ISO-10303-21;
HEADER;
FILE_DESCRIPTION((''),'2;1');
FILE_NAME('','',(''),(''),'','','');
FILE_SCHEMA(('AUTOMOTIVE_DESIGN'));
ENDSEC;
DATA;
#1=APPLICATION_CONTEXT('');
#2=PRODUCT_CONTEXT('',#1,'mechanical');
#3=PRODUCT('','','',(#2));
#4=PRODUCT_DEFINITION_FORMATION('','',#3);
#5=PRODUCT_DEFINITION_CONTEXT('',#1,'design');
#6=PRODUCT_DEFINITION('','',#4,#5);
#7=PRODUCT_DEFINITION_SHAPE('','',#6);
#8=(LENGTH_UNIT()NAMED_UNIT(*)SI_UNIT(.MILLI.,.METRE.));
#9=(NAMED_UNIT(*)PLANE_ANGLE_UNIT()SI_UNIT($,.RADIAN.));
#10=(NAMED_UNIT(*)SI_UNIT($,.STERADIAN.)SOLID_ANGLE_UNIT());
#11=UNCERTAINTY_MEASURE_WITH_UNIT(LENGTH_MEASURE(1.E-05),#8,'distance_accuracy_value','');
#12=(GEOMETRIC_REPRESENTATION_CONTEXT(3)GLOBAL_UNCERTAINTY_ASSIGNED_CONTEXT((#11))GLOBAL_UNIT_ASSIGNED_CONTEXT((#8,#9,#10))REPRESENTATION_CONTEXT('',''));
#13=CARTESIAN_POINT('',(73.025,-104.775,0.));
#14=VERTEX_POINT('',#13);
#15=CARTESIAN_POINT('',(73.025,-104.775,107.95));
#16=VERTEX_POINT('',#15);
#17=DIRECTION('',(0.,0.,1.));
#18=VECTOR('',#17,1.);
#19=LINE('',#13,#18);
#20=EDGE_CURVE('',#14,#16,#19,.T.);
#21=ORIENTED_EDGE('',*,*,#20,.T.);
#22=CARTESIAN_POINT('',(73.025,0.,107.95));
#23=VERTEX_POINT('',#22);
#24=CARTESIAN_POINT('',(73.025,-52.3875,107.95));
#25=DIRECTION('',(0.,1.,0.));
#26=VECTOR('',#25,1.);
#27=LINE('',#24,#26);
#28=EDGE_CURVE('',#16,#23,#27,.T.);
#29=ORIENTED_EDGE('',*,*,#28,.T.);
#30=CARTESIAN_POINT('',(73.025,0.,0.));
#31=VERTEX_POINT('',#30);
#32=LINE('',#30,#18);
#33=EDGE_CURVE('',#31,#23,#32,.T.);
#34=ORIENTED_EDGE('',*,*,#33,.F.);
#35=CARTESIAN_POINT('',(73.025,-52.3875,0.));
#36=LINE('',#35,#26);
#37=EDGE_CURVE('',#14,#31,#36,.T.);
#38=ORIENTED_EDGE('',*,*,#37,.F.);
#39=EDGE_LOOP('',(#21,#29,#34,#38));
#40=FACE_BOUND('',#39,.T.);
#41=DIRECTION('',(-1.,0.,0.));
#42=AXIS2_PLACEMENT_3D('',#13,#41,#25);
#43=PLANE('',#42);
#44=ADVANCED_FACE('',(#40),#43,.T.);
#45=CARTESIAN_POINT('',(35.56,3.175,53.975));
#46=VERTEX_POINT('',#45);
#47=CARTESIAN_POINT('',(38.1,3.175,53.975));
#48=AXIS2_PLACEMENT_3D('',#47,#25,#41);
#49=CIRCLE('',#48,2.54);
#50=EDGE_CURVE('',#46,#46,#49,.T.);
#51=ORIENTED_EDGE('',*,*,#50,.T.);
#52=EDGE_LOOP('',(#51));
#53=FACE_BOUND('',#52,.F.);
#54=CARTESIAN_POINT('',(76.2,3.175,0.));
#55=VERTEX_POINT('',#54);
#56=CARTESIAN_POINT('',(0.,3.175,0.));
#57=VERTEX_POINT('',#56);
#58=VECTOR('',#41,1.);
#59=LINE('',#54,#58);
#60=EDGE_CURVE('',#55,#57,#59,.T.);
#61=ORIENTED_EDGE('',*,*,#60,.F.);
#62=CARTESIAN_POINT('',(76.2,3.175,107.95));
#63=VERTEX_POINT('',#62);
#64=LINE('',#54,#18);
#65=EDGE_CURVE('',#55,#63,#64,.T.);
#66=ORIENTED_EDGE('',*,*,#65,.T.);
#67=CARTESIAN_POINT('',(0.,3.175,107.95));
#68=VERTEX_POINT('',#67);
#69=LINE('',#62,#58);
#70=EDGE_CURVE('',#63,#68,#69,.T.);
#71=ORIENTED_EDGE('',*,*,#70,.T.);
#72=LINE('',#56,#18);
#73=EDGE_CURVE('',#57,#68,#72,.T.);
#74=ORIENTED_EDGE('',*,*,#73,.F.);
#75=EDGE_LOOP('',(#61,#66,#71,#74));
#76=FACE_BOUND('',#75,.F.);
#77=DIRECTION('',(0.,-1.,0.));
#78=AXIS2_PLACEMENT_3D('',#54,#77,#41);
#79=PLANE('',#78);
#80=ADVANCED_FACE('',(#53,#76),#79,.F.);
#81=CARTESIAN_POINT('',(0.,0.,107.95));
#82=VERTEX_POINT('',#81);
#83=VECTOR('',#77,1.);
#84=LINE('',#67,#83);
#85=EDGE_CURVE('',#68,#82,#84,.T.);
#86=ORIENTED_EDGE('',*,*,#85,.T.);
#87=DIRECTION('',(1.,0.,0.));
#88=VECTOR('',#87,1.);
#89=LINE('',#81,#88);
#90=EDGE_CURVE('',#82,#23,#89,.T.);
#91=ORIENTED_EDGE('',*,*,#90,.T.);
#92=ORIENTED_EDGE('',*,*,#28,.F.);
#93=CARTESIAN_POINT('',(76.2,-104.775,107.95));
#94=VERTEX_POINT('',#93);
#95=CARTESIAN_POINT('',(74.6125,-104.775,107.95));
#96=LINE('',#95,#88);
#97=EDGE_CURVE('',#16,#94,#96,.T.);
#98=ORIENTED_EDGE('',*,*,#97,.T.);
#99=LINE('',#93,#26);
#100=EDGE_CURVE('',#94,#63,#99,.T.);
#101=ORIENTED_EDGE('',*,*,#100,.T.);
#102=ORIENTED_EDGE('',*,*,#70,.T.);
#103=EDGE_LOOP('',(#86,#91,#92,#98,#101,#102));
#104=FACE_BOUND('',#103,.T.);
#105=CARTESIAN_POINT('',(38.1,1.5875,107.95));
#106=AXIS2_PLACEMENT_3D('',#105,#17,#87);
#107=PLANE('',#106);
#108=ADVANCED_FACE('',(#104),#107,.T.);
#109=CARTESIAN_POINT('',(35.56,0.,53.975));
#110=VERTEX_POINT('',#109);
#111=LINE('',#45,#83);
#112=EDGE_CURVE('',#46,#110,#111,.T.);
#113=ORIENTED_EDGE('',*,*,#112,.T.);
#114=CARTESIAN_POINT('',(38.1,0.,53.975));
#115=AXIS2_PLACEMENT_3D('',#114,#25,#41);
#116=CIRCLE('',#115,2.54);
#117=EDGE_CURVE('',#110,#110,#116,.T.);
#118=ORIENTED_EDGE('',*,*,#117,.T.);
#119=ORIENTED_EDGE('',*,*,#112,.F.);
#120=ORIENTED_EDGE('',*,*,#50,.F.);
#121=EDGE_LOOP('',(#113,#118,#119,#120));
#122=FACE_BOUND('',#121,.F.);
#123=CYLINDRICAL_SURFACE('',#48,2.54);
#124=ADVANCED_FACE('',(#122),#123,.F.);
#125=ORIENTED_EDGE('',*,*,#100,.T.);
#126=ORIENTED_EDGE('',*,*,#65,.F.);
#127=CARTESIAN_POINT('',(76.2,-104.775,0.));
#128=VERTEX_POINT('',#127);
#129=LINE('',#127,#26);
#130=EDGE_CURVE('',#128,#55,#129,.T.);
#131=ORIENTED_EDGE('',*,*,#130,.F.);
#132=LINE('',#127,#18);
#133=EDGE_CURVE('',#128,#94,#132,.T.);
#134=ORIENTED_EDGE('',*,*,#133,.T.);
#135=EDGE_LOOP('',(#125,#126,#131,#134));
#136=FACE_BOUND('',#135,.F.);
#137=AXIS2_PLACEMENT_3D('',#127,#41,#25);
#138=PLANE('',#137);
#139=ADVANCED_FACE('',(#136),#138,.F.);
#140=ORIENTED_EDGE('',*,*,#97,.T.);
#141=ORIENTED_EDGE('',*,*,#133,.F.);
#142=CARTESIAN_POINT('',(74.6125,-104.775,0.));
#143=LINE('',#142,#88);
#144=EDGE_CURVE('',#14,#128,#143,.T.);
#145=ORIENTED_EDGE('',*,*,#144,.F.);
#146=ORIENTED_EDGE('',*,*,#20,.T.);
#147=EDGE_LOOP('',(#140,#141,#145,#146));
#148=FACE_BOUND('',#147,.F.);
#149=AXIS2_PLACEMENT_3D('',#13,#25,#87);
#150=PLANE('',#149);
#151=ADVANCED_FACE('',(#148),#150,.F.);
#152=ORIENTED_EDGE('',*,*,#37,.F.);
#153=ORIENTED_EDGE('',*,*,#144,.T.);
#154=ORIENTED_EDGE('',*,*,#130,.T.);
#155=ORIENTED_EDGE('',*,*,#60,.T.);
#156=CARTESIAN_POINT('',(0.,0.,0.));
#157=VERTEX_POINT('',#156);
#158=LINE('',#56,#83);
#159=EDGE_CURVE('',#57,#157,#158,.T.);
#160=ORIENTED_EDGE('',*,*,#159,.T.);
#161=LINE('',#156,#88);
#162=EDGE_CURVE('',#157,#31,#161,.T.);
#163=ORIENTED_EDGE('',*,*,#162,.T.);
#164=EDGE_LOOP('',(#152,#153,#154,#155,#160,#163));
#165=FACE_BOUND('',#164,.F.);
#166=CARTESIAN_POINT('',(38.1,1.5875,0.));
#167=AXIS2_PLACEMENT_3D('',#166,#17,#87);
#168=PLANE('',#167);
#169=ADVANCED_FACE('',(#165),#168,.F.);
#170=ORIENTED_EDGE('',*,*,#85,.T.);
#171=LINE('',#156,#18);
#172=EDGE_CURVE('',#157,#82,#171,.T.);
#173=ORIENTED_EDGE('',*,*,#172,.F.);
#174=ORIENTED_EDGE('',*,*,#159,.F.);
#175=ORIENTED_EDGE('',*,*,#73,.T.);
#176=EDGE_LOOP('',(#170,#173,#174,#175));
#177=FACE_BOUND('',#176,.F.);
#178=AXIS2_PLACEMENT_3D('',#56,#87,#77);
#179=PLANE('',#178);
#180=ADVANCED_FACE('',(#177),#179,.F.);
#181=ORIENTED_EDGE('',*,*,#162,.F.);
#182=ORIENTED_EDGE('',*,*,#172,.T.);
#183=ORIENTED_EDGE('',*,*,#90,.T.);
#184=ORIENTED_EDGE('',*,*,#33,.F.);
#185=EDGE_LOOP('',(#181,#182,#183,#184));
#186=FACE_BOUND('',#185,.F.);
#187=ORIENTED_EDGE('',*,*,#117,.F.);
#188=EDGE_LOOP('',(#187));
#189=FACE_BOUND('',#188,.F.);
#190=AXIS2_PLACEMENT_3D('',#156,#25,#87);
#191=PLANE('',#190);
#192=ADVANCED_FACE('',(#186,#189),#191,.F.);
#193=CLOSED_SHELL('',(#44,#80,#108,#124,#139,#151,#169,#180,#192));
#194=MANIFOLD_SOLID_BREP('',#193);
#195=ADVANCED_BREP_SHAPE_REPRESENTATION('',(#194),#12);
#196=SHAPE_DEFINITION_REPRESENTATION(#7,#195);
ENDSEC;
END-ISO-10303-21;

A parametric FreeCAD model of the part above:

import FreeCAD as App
import Part
import Sketcher
Q = App.Units.Quantity


def add_polygon(sketch, points):
    """Adds a closed chain of lines whose ends are joined by coincident constraints."""
    first, n = sketch.GeometryCount, len(points)
    for a, b in zip(points, points[1:] + points[:1]):
        sketch.addGeometry(Part.LineSegment(App.Vector(*a, 0), App.Vector(*b, 0)), False)
    for i in range(n):
        sketch.addConstraint(Sketcher.Constraint("Coincident", first + i, 2, first + (i + 1) % n, 1))

doc = App.newDocument("Part")
body = doc.addObject("PartDesign::Body", "Body")

sketch1 = body.newObject("Sketcher::SketchObject", "Sketch")
sketch1.AttachmentSupport = (doc.getObject("XY_Plane"), [""])
sketch1.MapMode = "FlatFace"
add_polygon(sketch1, [(0, 3.175), (0, 0), (73.025, 0), (73.025, -104.775), (76.2, -104.775), (76.2, 3.175)])
sketch1.addConstraint([
    Sketcher.Constraint("Vertical", 0),
    Sketcher.Constraint("Horizontal", 1),
    Sketcher.Constraint("Vertical", 2),
    Sketcher.Constraint("Horizontal", 3),
    Sketcher.Constraint("Vertical", 4),
    Sketcher.Constraint("Horizontal", 5),
    Sketcher.Constraint("Coincident", 0, 2, -1, 1),
    Sketcher.Constraint("Equal", 3, 0),
    Sketcher.Constraint("DistanceX", 5, 2, 5, 1, Q("3 in")),
    Sketcher.Constraint("DistanceY", 4, 1, 4, 2, Q("4.25 in")),
    Sketcher.Constraint("DistanceX", 1, 1, 1, 2, Q("2.875 in")),
])
pad1 = body.newObject("PartDesign::Pad", "Pad")
pad1.Profile = sketch1
pad1.Length = Q("4.25 in")

sketch2 = body.newObject("Sketcher::SketchObject", "Sketch001")
sketch2.AttachmentSupport = (doc.getObject("XZ_Plane"), [""])
sketch2.MapMode = "FlatFace"
sketch2.AttachmentOffset = App.Placement(App.Vector(0, 0, -0.125 * 25.4), App.Rotation())
sketch2.addGeometry(Part.Circle(App.Vector(38.1, 53.975, 0), App.Vector(0, 0, 1), 2.54), False)
sketch2.addConstraint([
    Sketcher.Constraint("Diameter", 0, Q("0.2 in")),
    Sketcher.Constraint("DistanceX", -1, 1, 0, 3, Q("1.5 in")),
    Sketcher.Constraint("DistanceY", -1, 1, 0, 3, Q("2.125 in")),
])
pocket1 = body.newObject("PartDesign::Pocket", "Pocket")
pocket1.Profile = sketch2
pocket1.Length = Q("1 in")
pocket1.Reversed = True

doc.recompute()
